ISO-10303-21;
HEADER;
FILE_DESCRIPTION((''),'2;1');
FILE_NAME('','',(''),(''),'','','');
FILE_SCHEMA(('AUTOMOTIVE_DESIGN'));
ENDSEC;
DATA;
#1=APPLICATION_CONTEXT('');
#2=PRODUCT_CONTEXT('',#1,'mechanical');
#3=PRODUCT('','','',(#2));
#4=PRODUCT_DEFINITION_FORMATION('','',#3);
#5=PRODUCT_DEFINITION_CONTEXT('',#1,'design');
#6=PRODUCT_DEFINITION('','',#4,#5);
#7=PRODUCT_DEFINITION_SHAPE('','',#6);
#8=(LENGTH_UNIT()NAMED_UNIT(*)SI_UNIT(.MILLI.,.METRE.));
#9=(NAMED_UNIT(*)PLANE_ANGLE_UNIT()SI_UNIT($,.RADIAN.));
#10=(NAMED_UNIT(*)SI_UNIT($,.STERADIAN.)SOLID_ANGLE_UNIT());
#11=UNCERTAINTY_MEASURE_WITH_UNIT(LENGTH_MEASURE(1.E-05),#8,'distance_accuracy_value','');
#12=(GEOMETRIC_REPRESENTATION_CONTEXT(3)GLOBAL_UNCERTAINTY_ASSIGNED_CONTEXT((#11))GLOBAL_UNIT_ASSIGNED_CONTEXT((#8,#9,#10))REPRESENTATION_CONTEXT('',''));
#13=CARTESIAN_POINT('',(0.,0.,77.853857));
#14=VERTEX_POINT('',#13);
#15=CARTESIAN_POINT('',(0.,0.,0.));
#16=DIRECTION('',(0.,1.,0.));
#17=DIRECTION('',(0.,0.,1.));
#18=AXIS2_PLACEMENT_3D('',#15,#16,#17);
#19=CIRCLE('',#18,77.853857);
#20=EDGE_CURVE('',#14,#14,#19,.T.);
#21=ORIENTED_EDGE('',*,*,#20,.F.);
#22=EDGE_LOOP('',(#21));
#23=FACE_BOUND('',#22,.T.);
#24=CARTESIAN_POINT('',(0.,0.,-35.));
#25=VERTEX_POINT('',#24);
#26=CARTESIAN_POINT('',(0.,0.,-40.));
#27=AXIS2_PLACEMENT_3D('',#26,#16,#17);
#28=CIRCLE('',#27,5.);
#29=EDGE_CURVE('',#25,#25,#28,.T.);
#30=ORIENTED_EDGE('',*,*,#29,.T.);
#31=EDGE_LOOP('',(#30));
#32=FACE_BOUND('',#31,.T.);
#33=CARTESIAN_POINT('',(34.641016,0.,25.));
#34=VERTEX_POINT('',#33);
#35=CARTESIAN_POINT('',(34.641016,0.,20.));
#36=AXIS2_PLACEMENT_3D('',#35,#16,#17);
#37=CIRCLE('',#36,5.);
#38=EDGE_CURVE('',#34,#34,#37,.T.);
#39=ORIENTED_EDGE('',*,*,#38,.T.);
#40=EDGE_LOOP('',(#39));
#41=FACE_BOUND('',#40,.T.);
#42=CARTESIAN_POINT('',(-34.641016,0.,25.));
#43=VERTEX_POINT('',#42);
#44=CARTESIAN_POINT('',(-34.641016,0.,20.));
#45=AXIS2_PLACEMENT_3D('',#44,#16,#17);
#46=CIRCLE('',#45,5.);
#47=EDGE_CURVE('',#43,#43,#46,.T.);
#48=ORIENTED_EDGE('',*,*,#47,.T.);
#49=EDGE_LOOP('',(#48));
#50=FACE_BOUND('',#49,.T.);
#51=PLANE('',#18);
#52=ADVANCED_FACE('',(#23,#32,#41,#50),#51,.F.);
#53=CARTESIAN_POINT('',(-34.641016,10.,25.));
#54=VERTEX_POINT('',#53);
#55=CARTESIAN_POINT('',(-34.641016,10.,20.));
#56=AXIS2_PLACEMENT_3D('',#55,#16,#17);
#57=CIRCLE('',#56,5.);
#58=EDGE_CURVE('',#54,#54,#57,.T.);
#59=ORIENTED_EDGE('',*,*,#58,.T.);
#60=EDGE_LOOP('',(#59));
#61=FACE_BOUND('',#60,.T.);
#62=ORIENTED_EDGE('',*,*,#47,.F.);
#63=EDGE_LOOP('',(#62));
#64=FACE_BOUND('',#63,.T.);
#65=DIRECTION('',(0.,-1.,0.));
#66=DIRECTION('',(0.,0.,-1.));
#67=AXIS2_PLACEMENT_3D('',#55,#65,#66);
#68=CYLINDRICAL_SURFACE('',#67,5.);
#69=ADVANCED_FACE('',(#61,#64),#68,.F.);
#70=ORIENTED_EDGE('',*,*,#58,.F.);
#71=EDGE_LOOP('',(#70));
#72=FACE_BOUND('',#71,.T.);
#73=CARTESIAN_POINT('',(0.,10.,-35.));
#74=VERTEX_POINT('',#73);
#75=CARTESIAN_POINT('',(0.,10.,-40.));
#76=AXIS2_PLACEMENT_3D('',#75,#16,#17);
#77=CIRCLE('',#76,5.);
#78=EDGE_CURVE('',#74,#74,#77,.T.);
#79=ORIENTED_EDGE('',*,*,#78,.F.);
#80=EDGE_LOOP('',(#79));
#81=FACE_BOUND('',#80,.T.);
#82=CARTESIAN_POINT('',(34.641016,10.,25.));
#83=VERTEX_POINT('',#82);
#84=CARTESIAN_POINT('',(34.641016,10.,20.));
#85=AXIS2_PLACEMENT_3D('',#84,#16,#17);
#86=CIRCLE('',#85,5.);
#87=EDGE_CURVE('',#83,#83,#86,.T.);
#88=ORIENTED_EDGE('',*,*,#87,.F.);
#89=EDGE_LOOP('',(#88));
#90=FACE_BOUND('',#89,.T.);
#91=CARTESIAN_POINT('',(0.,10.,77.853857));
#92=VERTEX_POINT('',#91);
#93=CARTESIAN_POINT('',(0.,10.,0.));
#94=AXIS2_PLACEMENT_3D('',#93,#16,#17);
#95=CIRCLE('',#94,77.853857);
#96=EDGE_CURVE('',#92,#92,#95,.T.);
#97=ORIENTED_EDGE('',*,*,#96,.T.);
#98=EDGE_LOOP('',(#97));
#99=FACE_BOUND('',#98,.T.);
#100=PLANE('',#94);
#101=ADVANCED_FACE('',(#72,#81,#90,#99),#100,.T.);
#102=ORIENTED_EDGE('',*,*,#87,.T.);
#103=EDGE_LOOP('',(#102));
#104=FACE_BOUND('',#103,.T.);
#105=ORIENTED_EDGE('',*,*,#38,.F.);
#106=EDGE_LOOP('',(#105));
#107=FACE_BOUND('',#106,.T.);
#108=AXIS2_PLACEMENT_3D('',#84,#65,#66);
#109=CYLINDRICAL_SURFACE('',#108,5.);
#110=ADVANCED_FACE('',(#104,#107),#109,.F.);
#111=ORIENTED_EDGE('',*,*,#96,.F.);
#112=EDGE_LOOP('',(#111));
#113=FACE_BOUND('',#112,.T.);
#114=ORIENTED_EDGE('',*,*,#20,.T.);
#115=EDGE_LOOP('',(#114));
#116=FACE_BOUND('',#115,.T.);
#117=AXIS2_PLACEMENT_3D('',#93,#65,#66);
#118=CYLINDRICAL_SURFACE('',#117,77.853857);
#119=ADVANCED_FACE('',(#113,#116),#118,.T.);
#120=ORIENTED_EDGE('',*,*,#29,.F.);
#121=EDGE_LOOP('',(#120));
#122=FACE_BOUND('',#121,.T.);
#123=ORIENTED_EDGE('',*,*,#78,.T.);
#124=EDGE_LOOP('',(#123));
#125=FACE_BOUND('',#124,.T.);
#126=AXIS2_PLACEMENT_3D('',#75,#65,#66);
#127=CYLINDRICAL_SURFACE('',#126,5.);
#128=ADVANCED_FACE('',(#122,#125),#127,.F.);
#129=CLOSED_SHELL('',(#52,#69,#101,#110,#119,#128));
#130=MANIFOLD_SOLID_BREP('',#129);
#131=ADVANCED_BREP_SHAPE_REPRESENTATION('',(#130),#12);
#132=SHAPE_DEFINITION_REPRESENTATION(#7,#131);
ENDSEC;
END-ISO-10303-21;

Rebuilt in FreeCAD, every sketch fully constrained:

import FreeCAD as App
import Part
import Sketcher
Q = App.Units.Quantity

doc = App.newDocument("Part")
body = doc.addObject("PartDesign::Body", "Body")

# Sketch on XZ plane
sketch1 = body.newObject("Sketcher::SketchObject", "Sketch")
sketch1.AttachmentSupport = (doc.getObject("XZ_Plane"), [""])
sketch1.MapMode = "FlatFace"
sketch1.addGeometry(Part.Circle(App.Vector(0, 0, 0), App.Vector(0, 0, 1), 77.853857), False)
sketch1.addGeometry(Part.Circle(App.Vector(-34.641016, 20, 0), App.Vector(0, 0, 1), 5), False)
sketch1.addGeometry(Part.Circle(App.Vector(34.641016, 20, 0), App.Vector(0, 0, 1), 5), False)
sketch1.addGeometry(Part.Circle(App.Vector(0, -40, 0), App.Vector(0, 0, 1), 5), False)
sketch1.addConstraint(Sketcher.Constraint("Coincident", 0, 3, -1, 1))
sketch1.addConstraint(Sketcher.Constraint("Equal", 1, 2))
sketch1.addConstraint(Sketcher.Constraint("Equal", 2, 3))
sketch1.addConstraint(Sketcher.Constraint("Symmetric", 1, 3, 2, 3, -2))
sketch1.addConstraint(Sketcher.Constraint("PointOnObject", 3, 3, -2))
sketch1.addConstraint(Sketcher.Constraint("Diameter", 1, Q("10 mm")))
sketch1.addConstraint(Sketcher.Constraint("DistanceY", -1, 1, 1, 3, Q("20 mm")))
sketch1.addConstraint(Sketcher.Constraint("DistanceY", 3, 3, -1, 1, Q("40 mm")))
sketch1.addConstraint(Sketcher.Constraint("Diameter", 0, Q("155.707713 mm")))
sketch1.addConstraint(Sketcher.Constraint("DistanceX", 1, 3, -1, 1, Q("34.641016 mm")))
pad1 = body.newObject("PartDesign::Pad", "Pad")
pad1.Profile = sketch1
pad1.Length = 10
pad1.Reversed = True

doc.recompute()
